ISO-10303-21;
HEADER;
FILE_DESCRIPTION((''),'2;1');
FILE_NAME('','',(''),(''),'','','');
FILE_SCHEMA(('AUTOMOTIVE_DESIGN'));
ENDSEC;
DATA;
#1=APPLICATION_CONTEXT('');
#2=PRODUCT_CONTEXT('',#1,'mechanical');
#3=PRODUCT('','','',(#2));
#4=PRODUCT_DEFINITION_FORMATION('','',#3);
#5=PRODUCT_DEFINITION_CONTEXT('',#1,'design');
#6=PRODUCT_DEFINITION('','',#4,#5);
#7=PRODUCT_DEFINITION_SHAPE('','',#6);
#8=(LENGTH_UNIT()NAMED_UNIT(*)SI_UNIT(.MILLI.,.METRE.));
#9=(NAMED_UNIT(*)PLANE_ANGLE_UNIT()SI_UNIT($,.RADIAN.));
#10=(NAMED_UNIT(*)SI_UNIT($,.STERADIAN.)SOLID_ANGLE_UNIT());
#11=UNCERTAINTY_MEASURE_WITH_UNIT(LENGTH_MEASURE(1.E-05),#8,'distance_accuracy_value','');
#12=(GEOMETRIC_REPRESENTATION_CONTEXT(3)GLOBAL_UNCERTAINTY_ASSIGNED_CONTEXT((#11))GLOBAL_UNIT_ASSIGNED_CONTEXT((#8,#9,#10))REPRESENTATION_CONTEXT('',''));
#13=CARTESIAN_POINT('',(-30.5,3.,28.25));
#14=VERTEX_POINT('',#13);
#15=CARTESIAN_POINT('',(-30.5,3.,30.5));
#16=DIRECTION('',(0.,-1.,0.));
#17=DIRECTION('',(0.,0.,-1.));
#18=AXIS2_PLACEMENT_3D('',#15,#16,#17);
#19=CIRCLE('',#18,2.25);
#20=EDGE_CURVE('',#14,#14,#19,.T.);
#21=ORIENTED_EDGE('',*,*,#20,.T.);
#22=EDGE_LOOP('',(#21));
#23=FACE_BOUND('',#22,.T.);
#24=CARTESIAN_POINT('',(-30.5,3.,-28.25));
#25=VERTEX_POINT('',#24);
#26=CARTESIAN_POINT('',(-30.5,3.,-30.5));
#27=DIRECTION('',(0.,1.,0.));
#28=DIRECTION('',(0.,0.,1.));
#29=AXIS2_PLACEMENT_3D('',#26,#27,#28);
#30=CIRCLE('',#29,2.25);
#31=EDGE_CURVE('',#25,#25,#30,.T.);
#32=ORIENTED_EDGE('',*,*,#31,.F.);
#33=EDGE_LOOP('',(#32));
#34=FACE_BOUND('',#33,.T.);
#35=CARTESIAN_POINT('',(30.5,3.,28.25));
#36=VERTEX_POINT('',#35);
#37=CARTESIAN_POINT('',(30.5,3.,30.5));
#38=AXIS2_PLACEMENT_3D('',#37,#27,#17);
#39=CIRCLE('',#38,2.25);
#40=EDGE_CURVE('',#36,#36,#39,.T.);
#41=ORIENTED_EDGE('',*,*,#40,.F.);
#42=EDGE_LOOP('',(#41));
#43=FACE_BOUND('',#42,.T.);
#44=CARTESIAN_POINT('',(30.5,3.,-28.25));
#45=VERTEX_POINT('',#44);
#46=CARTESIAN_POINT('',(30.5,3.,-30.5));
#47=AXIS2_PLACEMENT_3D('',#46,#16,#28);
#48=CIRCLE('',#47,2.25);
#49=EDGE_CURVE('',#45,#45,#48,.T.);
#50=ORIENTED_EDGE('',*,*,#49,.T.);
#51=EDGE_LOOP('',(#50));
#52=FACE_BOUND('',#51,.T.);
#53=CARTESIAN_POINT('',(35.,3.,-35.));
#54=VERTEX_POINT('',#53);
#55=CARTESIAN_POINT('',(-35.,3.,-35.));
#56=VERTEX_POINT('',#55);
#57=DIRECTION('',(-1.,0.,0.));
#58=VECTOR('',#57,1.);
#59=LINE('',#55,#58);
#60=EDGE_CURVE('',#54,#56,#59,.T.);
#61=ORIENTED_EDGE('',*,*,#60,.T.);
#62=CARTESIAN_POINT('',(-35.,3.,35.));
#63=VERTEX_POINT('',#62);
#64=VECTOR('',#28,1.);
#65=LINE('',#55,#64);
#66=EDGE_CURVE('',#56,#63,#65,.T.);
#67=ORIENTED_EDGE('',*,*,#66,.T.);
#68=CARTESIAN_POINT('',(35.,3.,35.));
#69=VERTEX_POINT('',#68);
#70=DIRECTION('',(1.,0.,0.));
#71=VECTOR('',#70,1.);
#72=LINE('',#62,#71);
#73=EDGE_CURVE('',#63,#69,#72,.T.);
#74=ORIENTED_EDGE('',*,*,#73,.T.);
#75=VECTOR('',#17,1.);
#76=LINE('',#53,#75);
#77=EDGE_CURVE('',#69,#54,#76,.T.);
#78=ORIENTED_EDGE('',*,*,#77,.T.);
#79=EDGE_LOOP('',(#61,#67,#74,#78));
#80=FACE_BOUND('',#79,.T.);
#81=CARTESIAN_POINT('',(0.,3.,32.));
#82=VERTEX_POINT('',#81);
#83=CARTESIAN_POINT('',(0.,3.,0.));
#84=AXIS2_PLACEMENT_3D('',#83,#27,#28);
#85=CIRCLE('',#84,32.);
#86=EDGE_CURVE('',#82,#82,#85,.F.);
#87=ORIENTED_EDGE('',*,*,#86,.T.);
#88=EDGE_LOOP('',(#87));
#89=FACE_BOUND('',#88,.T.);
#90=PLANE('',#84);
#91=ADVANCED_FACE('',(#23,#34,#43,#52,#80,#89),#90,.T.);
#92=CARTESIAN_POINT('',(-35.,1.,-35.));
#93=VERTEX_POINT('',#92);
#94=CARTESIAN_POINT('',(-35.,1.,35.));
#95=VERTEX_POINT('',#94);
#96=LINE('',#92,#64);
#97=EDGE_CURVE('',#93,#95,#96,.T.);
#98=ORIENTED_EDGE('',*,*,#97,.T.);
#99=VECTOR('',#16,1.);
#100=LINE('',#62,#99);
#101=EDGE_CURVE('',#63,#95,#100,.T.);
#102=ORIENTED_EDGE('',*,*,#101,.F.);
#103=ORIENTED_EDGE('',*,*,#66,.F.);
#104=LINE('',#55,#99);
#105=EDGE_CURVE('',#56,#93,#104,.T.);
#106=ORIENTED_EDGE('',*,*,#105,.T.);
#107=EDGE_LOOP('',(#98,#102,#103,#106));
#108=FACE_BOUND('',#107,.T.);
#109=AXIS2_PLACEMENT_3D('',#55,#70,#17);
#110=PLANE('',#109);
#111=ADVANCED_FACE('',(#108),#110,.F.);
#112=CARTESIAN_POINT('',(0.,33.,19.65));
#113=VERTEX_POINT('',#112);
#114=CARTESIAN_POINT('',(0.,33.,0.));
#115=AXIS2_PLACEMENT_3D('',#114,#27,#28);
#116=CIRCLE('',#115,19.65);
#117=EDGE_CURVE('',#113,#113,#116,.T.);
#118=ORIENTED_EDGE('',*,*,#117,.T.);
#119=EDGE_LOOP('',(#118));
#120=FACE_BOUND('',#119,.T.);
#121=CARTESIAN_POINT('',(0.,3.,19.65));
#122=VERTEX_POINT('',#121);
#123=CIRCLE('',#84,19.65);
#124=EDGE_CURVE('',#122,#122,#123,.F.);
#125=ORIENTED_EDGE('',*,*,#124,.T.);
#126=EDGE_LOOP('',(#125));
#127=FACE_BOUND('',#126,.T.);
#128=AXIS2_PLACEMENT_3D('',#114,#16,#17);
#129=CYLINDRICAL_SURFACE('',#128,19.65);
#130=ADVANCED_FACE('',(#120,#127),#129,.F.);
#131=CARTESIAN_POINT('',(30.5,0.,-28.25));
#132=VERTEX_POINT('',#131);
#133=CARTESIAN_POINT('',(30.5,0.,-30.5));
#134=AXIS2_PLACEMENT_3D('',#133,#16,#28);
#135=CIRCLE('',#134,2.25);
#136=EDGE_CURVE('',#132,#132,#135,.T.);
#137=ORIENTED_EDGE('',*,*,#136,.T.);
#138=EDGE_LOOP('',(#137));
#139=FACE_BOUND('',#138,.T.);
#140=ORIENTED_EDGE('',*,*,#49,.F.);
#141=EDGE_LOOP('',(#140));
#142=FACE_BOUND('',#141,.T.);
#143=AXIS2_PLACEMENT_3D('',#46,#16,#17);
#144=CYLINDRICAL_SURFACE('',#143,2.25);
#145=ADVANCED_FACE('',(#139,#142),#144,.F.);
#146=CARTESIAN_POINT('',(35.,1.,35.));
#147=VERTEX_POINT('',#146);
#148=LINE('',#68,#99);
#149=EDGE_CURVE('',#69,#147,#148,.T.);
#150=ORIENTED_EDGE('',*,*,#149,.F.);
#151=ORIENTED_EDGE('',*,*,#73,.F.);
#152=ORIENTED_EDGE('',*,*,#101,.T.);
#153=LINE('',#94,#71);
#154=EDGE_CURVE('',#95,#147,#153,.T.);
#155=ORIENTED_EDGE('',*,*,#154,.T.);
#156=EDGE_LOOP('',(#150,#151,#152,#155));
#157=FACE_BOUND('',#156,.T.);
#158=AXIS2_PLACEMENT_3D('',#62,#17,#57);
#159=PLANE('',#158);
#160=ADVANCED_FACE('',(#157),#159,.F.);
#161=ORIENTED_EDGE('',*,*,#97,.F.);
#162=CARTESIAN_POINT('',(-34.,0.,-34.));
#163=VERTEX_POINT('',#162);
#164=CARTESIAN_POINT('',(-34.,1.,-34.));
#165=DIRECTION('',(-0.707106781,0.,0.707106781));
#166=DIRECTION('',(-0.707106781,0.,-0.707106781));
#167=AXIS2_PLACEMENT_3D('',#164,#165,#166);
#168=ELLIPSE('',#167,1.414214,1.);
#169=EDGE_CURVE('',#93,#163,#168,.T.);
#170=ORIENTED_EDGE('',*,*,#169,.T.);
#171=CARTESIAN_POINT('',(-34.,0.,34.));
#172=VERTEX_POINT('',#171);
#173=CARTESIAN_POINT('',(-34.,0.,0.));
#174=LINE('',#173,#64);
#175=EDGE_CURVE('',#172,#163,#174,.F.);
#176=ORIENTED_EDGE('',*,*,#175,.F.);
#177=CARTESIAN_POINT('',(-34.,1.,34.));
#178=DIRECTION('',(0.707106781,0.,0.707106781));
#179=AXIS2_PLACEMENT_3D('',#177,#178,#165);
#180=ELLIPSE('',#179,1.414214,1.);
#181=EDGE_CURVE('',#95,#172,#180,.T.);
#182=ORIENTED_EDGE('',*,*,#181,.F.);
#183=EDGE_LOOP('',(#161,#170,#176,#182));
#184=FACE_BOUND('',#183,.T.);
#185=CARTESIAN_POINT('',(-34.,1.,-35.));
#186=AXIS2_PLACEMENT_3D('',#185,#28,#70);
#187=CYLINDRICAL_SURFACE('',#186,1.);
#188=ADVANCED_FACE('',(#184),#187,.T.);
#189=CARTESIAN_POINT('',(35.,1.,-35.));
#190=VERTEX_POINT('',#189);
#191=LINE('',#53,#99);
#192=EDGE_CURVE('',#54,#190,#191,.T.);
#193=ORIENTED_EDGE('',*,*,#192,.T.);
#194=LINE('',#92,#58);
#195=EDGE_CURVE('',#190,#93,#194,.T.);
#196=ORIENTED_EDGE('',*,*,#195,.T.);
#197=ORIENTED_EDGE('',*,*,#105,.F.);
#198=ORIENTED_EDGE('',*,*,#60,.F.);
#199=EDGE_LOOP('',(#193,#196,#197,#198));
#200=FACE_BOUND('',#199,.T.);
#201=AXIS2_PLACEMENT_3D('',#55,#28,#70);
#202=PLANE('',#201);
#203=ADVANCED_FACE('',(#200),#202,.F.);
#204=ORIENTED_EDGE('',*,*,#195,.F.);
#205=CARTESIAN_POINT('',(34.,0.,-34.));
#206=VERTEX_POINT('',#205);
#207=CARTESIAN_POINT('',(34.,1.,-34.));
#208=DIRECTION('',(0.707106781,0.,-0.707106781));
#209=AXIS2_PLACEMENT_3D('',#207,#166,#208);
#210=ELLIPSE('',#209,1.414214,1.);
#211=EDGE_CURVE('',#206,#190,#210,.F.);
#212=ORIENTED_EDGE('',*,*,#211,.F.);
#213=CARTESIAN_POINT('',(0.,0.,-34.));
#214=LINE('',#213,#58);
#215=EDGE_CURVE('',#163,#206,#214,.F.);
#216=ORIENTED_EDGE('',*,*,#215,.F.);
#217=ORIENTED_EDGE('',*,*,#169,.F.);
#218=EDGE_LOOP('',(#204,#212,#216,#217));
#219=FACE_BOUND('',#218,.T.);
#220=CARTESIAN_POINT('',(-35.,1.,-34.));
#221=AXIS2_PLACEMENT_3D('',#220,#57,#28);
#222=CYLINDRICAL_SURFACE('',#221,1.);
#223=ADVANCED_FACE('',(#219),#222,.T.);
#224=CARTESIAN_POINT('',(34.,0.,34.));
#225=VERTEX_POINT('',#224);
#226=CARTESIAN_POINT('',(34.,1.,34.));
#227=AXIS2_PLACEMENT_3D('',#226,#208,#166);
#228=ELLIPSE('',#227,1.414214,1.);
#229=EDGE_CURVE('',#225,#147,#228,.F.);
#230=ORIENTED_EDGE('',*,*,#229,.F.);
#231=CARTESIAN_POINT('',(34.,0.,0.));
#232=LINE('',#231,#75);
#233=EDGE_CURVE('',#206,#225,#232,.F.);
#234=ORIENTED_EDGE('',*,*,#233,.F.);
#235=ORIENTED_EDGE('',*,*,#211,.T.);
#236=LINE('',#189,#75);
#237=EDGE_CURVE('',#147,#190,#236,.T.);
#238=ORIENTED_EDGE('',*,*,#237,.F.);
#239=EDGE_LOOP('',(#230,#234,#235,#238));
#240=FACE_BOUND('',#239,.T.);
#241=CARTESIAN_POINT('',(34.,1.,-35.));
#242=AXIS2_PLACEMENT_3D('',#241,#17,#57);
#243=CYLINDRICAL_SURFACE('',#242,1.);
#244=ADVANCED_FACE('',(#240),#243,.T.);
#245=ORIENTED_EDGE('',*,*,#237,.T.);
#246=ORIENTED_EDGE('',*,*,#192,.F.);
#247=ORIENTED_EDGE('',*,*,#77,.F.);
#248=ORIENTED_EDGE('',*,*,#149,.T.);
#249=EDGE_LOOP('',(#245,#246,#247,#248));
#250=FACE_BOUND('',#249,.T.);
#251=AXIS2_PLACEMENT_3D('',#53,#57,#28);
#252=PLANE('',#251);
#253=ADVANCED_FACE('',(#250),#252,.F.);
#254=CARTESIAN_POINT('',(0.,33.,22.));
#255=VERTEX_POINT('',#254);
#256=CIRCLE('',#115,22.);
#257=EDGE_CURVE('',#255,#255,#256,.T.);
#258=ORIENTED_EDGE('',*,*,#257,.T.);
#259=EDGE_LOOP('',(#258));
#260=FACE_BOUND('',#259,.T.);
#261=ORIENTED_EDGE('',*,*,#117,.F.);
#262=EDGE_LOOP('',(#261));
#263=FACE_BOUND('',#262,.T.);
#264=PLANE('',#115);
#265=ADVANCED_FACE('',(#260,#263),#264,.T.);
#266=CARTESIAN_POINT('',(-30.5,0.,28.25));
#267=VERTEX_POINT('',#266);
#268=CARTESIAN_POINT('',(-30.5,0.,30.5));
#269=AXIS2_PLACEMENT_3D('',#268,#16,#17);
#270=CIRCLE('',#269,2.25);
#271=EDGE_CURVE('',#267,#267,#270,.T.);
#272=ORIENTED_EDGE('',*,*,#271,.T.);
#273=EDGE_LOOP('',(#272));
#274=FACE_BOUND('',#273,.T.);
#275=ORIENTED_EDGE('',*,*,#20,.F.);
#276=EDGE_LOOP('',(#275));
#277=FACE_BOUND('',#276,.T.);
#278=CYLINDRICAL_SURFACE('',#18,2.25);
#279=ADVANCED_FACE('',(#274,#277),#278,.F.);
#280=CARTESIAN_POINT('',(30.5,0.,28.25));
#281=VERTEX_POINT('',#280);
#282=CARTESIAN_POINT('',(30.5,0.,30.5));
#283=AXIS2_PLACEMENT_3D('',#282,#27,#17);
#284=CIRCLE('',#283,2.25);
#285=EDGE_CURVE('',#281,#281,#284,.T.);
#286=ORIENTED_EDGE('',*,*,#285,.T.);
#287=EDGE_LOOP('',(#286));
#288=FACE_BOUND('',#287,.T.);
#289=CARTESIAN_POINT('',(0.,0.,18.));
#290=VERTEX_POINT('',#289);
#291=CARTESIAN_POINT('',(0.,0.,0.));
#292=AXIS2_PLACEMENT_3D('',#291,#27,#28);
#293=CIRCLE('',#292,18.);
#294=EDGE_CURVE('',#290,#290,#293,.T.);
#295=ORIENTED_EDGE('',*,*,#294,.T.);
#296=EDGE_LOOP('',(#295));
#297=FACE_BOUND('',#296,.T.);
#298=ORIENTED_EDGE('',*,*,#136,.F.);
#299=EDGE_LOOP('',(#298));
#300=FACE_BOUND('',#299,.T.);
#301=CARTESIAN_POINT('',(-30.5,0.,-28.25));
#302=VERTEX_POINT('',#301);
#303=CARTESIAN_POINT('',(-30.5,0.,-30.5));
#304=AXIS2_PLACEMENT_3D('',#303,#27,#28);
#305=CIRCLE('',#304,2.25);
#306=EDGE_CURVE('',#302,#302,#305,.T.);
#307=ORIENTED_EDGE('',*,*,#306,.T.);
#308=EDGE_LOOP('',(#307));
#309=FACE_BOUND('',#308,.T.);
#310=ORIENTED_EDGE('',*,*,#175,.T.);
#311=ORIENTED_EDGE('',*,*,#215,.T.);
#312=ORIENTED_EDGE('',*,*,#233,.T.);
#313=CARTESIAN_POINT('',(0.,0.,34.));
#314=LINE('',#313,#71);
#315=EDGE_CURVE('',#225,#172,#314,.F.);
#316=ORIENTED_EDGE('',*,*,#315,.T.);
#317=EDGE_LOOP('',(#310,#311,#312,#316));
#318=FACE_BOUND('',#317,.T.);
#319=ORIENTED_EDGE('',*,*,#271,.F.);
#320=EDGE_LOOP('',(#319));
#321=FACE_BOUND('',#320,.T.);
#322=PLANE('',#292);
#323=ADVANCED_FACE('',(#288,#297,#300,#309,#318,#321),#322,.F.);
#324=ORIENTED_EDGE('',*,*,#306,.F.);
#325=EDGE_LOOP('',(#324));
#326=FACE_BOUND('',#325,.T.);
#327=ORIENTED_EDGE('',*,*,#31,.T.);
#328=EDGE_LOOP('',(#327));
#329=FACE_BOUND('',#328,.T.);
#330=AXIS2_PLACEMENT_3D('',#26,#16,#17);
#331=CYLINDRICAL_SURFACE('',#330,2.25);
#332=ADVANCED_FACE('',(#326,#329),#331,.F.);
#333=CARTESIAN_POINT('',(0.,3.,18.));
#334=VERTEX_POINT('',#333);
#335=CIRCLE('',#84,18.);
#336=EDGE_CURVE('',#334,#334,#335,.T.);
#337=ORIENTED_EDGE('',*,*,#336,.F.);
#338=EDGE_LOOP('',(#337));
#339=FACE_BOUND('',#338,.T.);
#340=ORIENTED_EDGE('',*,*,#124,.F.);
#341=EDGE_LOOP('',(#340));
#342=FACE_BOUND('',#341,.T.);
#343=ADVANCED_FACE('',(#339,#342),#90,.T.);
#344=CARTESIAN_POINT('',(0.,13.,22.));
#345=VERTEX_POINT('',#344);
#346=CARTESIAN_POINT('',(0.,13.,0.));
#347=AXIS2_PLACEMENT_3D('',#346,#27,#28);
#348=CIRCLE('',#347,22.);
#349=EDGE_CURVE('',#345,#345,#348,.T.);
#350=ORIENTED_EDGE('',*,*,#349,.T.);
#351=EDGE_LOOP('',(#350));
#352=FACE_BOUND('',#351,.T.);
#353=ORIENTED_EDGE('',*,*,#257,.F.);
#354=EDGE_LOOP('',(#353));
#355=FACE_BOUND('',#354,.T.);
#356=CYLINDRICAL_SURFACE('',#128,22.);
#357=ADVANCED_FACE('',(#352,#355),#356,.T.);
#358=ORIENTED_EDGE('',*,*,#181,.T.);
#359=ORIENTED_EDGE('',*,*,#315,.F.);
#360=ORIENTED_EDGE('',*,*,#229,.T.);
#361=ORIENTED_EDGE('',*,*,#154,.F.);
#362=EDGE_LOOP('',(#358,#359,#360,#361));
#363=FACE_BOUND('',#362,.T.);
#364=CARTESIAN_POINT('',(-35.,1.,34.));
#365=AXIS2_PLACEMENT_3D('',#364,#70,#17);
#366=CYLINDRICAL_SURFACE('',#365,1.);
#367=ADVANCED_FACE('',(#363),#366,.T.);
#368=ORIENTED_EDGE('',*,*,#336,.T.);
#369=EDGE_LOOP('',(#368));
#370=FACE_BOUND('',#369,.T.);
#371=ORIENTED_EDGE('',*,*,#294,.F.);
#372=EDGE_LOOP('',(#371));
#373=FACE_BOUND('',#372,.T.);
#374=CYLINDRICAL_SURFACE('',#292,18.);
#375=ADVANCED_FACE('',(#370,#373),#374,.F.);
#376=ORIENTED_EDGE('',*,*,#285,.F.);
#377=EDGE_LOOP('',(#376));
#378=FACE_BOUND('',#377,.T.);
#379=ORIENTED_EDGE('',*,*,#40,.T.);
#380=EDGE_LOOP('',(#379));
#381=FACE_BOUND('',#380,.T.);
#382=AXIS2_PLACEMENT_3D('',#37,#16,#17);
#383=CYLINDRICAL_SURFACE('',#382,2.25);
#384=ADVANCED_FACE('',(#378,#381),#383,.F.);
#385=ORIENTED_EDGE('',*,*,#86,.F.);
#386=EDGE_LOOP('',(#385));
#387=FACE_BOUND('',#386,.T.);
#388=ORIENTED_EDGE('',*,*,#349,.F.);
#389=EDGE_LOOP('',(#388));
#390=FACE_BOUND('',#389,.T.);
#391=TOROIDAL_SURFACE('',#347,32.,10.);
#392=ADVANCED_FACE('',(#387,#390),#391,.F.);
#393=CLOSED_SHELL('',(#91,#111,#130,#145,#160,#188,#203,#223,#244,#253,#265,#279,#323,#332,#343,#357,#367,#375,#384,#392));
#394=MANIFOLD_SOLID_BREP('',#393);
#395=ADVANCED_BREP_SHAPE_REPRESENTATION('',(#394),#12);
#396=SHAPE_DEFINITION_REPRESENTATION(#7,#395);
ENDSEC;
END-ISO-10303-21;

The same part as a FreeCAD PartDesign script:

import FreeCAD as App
import Part
import Sketcher
from FreeCAD import Vector


def edges_at(feature, points):
    """Names of the edges that pass closest to the given points."""
    edges = feature.Shape.Edges
    near = lambda p: min(range(len(edges)), key=lambda i: edges[i].distToShape(Part.Vertex(*p))[0])
    return sorted({f"Edge{near(p) + 1}" for p in points})

doc = App.newDocument("Part")
body = doc.addObject("PartDesign::Body", "Body")

# Sketch on XZ plane
sketch1 = body.newObject("Sketcher::SketchObject", "Sketch")
sketch1.AttachmentSupport = (doc.getObject("XZ_Plane"), [""])
sketch1.MapMode = "FlatFace"
sketch1.addGeometry(Part.LineSegment(Vector(-35, -35, 0), Vector(-35, 35, 0)), False)
sketch1.addGeometry(Part.LineSegment(Vector(-35, 35, 0), Vector(35, 35, 0)), False)
sketch1.addGeometry(Part.LineSegment(Vector(35, 35, 0), Vector(35, -35, 0)), False)
sketch1.addGeometry(Part.LineSegment(Vector(35, -35, 0), Vector(-35, -35, 0)), False)
sketch1.addConstraint(Sketcher.Constraint("Coincident", 0, 2, 1, 1))
sketch1.addConstraint(Sketcher.Constraint("Coincident", 1, 2, 2, 1))
sketch1.addConstraint(Sketcher.Constraint("Coincident", 2, 2, 3, 1))
sketch1.addConstraint(Sketcher.Constraint("Coincident", 3, 2, 0, 1))
sketch1.addConstraint(Sketcher.Constraint("Vertical", 0))
sketch1.addConstraint(Sketcher.Constraint("Horizontal", 1))
sketch1.addConstraint(Sketcher.Constraint("Vertical", 2))
sketch1.addConstraint(Sketcher.Constraint("Horizontal", 3))
sketch1.addConstraint(Sketcher.Constraint("Symmetric", 0, 2, 2, 2, -1, 1))
sketch1.addConstraint(Sketcher.Constraint("Equal", 3, 0))
sketch1.addConstraint(Sketcher.Constraint("DistanceX", 1, 1, 1, 2, 70.0))
pad1 = body.newObject("PartDesign::Pad", "Pad")
pad1.Profile = sketch1
pad1.Length = 3
pad1.Reversed = True

# Sketch on XZ plane
sketch2 = body.newObject("Sketcher::SketchObject", "Sketch001")
sketch2.AttachmentSupport = (doc.getObject("XZ_Plane"), [""])
sketch2.MapMode = "FlatFace"
sketch2.AttachmentOffset = App.Placement(Vector(0, 0, -3), App.Rotation())
sketch2.addGeometry(Part.Circle(Vector(0, 0, 0), Vector(0, 0, 1), 18), False)
sketch2.addConstraint(Sketcher.Constraint("Coincident", 0, 3, -1, 1))
sketch2.addConstraint(Sketcher.Constraint("Diameter", 0, 36.0))
pocket1 = body.newObject("PartDesign::Pocket", "Pocket")
pocket1.Profile = sketch2
pocket1.Length = 3
pocket1.Reversed = True

# Sketch on XZ plane
sketch3 = body.newObject("Sketcher::SketchObject", "Sketch002")
sketch3.AttachmentSupport = (doc.getObject("XZ_Plane"), [""])
sketch3.MapMode = "FlatFace"
sketch3.AttachmentOffset = App.Placement(Vector(0, 0, -3), App.Rotation())
sketch3.addGeometry(Part.Circle(Vector(0, 0, 0), Vector(0, 0, 1), 22), False)
sketch3.addGeometry(Part.Circle(Vector(0, 0, 0), Vector(0, 0, 1), 20), False)
sketch3.addConstraint(Sketcher.Constraint("Coincident", 0, 3, -1, 1))
sketch3.addConstraint(Sketcher.Constraint("Coincident", 1, 3, -1, 1))
sketch3.addConstraint(Sketcher.Constraint("Diameter", 0, 44.0))
sketch3.addConstraint(Sketcher.Constraint("Diameter", 1, 39.3))
pad2 = body.newObject("PartDesign::Pad", "Pad001")
pad2.Profile = sketch3
pad2.Length = 30
pad2.Reversed = True
doc.recompute()

fillet = body.newObject("PartDesign::Fillet", "Fillet")
fillet.Base = (pad2, edges_at(pad2, [(-22, 3, 0)]))
fillet.Radius = 10

# Sketch on XZ plane
sketch4 = body.newObject("Sketcher::SketchObject", "Sketch003")
sketch4.AttachmentSupport = (doc.getObject("XZ_Plane"), [""])
sketch4.MapMode = "FlatFace"
sketch4.addGeometry(Part.Circle(Vector(-30.5, 30.5, 0), Vector(0, 0, 1), 2.2), False)
sketch4.addConstraint(Sketcher.Constraint("Diameter", 0, 4.5))
sketch4.addConstraint(Sketcher.Constraint("DistanceX", 0, 3, -1, 1, 30.5))
sketch4.addConstraint(Sketcher.Constraint("DistanceY", -1, 1, 0, 3, 30.5))
pocket2 = body.newObject("PartDesign::Pocket", "Pocket001")
pocket2.Profile = sketch4
pocket2.Length = 3
doc.recompute()

mirrored = body.newObject("PartDesign::Mirrored", "Mirrored")
mirrored.Originals = [pocket2]
mirrored.MirrorPlane = (doc.getObject("YZ_Plane"), [""])
body.Tip = mirrored
doc.recompute()

mirrored2 = body.newObject("PartDesign::Mirrored", "Mirrored001")
mirrored2.Originals = [pocket2]
mirrored2.MirrorPlane = (doc.getObject("XY_Plane"), [""])
body.Tip = mirrored2

# Sketch on XZ plane
sketch5 = body.newObject("Sketcher::SketchObject", "Sketch004")
sketch5.AttachmentSupport = (doc.getObject("XZ_Plane"), [""])
sketch5.MapMode = "FlatFace"
sketch5.addGeometry(Part.Circle(Vector(30.5, -30.5, 0), Vector(0, 0, 1), 2.2), False)
sketch5.addConstraint(Sketcher.Constraint("Diameter", 0, 4.5))
sketch5.addConstraint(Sketcher.Constraint("DistanceX", -1, 1, 0, 3, 30.5))
sketch5.addConstraint(Sketcher.Constraint("DistanceY", 0, 3, -1, 1, 30.5))
pocket3 = body.newObject("PartDesign::Pocket", "Pocket002")
pocket3.Profile = sketch5
pocket3.Length = 3
doc.recompute()

fillet2 = body.newObject("PartDesign::Fillet", "Fillet001")
fillet2.Base = (pocket3, edges_at(pocket3, [
    (0, 0, 35),
    (-35, 0, 0),
    (0, 0, -35),
    (35, 0, 0),
]))
fillet2.Radius = 1

doc.recompute()
